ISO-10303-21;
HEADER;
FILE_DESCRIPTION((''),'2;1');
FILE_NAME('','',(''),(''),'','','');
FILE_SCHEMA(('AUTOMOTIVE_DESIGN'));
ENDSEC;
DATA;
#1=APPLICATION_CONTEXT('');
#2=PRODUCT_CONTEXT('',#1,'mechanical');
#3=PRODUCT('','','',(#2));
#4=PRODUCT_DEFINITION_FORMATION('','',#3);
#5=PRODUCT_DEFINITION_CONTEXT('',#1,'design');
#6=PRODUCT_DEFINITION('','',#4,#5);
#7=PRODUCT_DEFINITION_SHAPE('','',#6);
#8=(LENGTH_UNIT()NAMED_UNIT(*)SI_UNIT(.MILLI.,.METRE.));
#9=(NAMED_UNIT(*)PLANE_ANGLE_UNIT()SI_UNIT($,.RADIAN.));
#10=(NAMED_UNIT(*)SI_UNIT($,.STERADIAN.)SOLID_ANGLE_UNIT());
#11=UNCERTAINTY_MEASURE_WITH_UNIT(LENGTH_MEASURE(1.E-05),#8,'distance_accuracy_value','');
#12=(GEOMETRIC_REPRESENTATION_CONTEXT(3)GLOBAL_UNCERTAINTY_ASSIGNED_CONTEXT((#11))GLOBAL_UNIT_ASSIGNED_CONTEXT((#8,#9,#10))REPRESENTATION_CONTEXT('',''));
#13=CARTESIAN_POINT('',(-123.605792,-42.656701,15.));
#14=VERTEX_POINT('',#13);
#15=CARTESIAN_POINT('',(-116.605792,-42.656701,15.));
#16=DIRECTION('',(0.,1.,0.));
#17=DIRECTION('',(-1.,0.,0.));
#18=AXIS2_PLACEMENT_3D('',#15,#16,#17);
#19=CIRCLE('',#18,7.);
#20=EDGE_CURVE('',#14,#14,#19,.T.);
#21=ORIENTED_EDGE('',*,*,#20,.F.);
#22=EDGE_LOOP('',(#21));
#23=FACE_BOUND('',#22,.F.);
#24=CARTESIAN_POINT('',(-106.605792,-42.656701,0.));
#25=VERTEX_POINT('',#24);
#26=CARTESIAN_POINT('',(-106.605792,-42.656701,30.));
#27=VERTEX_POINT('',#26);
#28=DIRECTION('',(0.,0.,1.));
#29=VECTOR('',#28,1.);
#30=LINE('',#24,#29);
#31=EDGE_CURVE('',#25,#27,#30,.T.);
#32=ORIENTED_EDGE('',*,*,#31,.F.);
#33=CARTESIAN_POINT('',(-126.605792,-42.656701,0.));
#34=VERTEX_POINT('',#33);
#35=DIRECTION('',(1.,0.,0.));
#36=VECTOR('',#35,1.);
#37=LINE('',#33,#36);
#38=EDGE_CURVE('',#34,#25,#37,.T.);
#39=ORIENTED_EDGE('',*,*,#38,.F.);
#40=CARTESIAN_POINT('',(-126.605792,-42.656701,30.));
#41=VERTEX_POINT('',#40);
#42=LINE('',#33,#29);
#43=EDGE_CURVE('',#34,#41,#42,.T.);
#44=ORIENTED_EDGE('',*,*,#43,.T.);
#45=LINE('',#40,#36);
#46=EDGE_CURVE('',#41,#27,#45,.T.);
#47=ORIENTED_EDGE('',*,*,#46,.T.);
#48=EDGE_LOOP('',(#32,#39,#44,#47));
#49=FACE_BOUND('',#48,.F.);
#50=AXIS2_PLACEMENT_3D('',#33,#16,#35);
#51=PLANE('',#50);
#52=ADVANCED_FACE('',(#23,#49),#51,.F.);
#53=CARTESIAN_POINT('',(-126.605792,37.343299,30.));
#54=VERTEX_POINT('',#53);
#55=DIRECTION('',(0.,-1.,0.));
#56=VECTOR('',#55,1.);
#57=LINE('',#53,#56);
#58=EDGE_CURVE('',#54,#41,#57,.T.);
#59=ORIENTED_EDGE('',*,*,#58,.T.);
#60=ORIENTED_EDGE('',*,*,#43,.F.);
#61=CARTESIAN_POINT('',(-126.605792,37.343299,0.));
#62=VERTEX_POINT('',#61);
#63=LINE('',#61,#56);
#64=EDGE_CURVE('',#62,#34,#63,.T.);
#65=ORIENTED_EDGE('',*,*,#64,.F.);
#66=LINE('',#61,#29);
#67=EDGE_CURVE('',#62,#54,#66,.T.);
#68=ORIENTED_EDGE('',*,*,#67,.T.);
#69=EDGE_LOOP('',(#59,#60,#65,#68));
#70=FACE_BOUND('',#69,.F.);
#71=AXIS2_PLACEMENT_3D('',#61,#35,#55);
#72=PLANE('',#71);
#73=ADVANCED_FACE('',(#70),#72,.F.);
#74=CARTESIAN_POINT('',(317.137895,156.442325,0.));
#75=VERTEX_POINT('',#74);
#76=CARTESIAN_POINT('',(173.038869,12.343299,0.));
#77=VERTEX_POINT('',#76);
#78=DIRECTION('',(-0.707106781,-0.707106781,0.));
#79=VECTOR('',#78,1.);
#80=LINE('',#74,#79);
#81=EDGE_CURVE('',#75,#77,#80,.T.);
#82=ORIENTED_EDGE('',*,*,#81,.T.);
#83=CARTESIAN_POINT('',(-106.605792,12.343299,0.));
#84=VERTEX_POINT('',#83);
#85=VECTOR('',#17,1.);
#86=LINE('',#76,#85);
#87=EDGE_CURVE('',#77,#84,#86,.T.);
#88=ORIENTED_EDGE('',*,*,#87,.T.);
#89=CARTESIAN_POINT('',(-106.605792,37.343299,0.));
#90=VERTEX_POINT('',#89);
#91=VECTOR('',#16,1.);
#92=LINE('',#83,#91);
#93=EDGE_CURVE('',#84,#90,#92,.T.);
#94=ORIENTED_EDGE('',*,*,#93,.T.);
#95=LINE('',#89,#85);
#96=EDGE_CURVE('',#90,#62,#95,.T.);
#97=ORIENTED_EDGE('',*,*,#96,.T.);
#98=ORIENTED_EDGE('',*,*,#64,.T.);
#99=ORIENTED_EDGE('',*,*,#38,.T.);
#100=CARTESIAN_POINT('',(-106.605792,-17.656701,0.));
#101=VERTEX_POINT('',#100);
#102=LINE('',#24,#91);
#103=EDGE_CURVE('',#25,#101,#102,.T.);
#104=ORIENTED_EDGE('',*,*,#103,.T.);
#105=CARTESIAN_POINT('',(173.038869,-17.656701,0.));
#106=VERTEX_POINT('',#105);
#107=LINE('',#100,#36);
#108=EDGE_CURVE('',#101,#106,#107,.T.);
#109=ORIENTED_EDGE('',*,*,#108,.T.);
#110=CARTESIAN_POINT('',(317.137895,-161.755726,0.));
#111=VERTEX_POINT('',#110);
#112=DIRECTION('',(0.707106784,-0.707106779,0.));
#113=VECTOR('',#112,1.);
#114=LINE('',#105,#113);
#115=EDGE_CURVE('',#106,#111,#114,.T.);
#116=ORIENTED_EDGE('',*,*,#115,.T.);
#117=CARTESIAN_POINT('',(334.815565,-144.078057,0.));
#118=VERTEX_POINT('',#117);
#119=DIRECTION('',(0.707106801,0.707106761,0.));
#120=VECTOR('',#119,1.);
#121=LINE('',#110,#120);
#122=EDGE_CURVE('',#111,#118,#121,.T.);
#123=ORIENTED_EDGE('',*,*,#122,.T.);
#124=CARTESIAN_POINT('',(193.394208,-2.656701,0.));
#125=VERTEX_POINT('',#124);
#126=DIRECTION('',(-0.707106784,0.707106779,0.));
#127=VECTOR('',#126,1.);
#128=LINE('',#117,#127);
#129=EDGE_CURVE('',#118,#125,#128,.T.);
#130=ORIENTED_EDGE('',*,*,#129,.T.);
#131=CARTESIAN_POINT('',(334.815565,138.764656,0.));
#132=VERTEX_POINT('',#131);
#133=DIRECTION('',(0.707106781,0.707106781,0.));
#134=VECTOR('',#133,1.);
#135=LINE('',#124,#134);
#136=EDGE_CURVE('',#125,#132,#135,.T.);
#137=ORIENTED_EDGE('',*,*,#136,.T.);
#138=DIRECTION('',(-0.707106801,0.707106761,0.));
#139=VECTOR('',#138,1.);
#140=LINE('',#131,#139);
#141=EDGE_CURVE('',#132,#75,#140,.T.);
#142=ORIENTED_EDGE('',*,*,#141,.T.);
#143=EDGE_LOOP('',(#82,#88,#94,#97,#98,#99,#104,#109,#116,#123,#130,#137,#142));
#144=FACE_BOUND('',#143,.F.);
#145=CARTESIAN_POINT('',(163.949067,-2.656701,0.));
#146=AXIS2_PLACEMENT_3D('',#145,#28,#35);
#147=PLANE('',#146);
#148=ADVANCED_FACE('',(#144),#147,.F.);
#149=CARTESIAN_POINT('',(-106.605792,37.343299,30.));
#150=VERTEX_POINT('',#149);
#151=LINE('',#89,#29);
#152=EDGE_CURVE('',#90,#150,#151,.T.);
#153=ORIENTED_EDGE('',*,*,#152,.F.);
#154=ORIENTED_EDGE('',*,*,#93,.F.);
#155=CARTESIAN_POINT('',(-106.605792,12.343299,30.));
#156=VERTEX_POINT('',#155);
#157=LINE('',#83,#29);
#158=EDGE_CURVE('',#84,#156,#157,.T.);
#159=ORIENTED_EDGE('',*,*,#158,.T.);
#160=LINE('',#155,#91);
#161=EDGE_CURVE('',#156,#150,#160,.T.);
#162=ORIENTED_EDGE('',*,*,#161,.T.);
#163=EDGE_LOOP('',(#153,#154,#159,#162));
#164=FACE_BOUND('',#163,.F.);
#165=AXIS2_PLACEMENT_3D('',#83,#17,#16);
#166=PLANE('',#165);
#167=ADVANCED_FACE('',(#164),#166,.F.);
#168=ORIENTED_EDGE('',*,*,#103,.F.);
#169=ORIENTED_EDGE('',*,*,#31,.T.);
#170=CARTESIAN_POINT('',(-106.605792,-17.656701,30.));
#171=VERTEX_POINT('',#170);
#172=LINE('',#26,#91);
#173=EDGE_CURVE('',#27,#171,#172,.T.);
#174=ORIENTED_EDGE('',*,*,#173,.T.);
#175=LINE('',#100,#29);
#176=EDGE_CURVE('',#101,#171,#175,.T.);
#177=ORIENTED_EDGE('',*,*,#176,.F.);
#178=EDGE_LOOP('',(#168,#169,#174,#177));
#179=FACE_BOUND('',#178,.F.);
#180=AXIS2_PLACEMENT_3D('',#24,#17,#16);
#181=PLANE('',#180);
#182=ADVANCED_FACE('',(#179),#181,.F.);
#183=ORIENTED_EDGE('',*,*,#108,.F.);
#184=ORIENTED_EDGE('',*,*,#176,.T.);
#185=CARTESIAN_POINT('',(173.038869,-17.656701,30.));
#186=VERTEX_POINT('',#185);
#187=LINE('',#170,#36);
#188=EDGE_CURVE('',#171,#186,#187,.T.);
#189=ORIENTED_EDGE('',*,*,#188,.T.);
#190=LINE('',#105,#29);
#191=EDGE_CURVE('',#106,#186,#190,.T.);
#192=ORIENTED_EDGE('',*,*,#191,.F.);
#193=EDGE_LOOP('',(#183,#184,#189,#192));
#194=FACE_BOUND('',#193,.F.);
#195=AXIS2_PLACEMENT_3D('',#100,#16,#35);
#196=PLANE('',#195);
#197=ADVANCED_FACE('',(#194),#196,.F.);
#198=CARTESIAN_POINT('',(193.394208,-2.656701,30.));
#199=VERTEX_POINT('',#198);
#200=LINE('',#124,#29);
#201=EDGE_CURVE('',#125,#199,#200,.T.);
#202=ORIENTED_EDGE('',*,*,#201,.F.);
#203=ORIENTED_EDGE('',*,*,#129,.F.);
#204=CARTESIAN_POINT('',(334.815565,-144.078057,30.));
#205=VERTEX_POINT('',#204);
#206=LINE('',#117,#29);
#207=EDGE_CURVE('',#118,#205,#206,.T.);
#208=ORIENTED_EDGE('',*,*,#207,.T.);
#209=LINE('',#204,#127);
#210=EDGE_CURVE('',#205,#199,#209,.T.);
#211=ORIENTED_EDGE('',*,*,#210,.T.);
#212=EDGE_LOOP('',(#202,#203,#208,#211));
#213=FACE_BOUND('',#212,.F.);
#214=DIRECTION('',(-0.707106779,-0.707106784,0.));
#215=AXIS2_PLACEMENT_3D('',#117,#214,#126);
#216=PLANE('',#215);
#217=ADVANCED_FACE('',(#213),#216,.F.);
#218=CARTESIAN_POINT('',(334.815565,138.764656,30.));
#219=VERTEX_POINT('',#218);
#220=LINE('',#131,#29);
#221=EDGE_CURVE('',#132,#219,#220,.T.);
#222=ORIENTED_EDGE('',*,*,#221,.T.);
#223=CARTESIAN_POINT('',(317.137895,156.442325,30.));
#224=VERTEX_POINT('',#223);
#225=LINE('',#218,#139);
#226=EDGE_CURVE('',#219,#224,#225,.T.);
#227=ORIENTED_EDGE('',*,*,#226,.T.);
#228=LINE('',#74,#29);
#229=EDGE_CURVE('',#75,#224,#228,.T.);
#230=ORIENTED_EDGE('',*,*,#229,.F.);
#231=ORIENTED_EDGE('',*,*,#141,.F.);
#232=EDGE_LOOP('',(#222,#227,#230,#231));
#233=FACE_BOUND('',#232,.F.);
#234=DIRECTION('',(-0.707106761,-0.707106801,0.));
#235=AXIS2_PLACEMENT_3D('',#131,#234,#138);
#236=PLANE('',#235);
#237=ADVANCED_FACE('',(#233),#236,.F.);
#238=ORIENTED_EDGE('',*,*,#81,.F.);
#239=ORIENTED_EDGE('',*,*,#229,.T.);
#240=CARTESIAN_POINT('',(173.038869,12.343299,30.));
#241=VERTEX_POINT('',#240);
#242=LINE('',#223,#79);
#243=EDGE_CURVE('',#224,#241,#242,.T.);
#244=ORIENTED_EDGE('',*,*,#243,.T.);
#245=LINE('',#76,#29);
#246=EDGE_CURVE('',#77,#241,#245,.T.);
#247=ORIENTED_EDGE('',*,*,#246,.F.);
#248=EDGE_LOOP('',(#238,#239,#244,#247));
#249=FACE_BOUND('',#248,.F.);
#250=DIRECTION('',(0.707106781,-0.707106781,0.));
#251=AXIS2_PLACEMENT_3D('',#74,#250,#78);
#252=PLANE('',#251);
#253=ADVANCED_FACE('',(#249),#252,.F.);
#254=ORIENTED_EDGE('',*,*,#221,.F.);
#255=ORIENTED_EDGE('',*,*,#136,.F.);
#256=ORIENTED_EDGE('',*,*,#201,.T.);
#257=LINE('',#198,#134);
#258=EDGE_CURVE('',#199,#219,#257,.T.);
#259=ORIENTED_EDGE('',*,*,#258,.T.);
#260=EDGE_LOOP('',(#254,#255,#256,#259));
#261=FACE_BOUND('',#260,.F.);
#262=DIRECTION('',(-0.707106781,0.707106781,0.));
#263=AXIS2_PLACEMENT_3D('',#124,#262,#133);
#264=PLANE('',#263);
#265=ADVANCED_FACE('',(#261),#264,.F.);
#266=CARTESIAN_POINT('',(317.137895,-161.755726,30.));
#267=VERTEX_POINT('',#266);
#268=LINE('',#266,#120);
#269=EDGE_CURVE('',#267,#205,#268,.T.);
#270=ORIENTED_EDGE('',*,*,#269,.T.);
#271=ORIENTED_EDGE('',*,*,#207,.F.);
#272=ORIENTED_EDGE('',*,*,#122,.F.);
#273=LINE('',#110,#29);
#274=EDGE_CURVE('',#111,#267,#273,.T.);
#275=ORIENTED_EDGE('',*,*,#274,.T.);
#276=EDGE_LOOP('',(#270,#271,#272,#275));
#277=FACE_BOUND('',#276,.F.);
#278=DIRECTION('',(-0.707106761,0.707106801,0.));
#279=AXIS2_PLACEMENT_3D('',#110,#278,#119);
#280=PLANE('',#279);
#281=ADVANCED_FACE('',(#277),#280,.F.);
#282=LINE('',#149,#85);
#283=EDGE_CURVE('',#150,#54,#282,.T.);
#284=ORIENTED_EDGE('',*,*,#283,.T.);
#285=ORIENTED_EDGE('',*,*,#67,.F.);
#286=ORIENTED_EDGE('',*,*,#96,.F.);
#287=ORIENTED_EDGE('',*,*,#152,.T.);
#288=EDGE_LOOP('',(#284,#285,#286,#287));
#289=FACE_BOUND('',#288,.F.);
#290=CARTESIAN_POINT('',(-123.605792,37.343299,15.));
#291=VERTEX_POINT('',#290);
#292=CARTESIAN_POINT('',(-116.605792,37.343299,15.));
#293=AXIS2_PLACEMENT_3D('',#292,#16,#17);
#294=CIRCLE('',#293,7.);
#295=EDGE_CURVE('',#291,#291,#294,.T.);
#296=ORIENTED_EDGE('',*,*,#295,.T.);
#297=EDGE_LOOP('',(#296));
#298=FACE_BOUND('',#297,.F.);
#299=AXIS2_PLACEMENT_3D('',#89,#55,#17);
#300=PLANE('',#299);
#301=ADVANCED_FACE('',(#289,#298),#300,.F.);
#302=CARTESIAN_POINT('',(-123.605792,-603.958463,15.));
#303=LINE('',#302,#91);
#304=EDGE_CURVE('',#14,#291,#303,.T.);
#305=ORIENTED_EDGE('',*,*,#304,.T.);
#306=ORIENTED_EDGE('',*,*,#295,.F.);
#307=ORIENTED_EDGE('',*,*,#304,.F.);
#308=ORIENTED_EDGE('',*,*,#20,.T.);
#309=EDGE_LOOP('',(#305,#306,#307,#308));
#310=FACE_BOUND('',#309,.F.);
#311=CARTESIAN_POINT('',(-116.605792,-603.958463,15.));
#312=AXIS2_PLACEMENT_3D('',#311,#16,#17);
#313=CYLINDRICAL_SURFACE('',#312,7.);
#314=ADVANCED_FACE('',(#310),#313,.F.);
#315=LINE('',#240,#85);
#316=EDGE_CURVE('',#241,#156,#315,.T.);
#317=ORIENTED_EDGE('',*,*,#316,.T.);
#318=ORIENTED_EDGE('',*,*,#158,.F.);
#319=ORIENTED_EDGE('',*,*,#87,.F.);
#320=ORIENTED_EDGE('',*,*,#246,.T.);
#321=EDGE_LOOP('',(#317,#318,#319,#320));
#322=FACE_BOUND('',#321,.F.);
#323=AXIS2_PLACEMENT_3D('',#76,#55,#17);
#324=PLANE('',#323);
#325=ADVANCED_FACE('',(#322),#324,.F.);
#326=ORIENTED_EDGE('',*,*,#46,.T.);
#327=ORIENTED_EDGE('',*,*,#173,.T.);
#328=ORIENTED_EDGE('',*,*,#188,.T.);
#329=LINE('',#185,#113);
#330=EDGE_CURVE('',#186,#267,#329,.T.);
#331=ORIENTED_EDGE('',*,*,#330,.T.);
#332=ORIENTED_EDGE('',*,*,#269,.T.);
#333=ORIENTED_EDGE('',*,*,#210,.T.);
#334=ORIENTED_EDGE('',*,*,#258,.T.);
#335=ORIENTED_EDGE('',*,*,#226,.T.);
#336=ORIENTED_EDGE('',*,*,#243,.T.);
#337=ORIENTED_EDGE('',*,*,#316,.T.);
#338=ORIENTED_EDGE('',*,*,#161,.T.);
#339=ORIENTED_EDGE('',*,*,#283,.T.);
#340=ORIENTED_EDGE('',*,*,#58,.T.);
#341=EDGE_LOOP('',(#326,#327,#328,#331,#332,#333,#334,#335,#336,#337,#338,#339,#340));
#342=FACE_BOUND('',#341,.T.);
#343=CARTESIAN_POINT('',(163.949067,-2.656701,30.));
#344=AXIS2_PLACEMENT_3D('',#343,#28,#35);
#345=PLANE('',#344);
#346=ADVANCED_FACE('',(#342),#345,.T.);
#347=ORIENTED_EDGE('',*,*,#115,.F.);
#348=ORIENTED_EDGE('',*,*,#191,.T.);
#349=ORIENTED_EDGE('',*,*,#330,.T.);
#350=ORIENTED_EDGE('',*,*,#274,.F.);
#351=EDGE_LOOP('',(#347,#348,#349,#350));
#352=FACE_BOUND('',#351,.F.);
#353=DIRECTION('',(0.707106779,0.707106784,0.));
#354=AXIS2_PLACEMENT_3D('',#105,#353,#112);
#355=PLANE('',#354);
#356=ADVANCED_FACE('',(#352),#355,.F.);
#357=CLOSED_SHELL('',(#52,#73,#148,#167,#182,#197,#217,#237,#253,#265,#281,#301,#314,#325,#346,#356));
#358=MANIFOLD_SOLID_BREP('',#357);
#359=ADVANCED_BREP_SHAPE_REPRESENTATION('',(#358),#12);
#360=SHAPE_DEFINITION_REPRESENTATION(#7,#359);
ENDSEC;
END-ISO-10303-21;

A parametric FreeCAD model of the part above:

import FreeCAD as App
import Part
import Sketcher


def add_polygon(sketch, points):
    """Adds a closed chain of lines whose ends are joined by coincident constraints."""
    first, n = sketch.GeometryCount, len(points)
    for a, b in zip(points, points[1:] + points[:1]):
        sketch.addGeometry(Part.LineSegment(App.Vector(*a, 0), App.Vector(*b, 0)), False)
    for i in range(n):
        sketch.addConstraint(Sketcher.Constraint("Coincident", first + i, 2, first + (i + 1) % n, 1))

doc = App.newDocument("Part")
body = doc.addObject("PartDesign::Body", "Body")

# Sketch on XY plane
sketch1 = body.newObject("Sketcher::SketchObject", "Sketch")
sketch1.AttachmentSupport = (doc.getObject("XY_Plane"), [""])
sketch1.MapMode = "FlatFace"
add_polygon(sketch1, [(173.038869, 12.343299), (-106.605792, 12.343299), (-106.605792, 37.343299), (-126.605792, 37.343299), (-126.605792, -42.656701), (-106.605792, -42.656701), (-106.605792, -17.656701), (173.038869, -17.656701), (317.137895, -161.755726), (334.815565, -144.078057), (193.394208, -2.656701), (334.815565, 138.764656), (317.137895, 156.442325)])  # lines 0-12
sketch1.addConstraint([
    Sketcher.Constraint("Horizontal", 0),
    Sketcher.Constraint("Vertical", 1),
    Sketcher.Constraint("Horizontal", 2),
    Sketcher.Constraint("Vertical", 3),
    Sketcher.Constraint("Horizontal", 4),
    Sketcher.Constraint("Vertical", 5),
    Sketcher.Constraint("Horizontal", 6),
    Sketcher.Constraint("Perpendicular", 7, 8),
    Sketcher.Constraint("Perpendicular", 8, 9),
    Sketcher.Constraint("Perpendicular", 9, 10),
    Sketcher.Constraint("Perpendicular", 10, 11),
    Sketcher.Constraint("Perpendicular", 11, 12),
    Sketcher.Constraint("Vertical", 1, 2, 4, 2),
    Sketcher.Constraint("Vertical", 8, 2, 10, 2),
    Sketcher.Constraint("Vertical", 7, 2, 11, 2),
    Sketcher.Constraint("Vertical", 6, 2, 12, 2),
    Sketcher.Constraint("Equal", 1, 5),
    Sketcher.Constraint("Equal", 9, 10),
    Sketcher.Constraint("DistanceX", 2, 2, 2, 1, 20.0),
    Sketcher.Constraint("DistanceY", 1, 1, 1, 2, 25.0),
    Sketcher.Constraint("DistanceY", 3, 2, 3, 1, 80.0),
    Sketcher.Constraint("Distance", 8, 25.0),
    Sketcher.Constraint("Distance", 9, 200.0),
    Sketcher.Constraint("DistanceX", 0, 2, 9, 2, 300.0),
    Sketcher.Constraint("DistanceY", -1, 1, 0, 2, 12.343299),
    Sketcher.Constraint("DistanceX", 0, 2, -1, 1, 106.605792),
])
pad1 = body.newObject("PartDesign::Pad", "Pad")
pad1.Profile = sketch1
pad1.Length = 30

# Sketch on XZ plane
sketch2 = body.newObject("Sketcher::SketchObject", "Sketch001")
sketch2.AttachmentSupport = (doc.getObject("XZ_Plane"), [""])
sketch2.MapMode = "FlatFace"
sketch2.AttachmentOffset = App.Placement(App.Vector(0, 0, 42.656701), App.Rotation())
sketch2.addGeometry(Part.Circle(App.Vector(-116.605792, 15, 0), App.Vector(0, 0, 1), 7), False)
sketch2.addConstraint([
    Sketcher.Constraint("Diameter", 0, 14.0),
    Sketcher.Constraint("DistanceY", -1, 1, 0, 3, 15.0),
    Sketcher.Constraint("DistanceX", 0, 3, -1, 1, 116.605792),
])
doc.recompute()
hole = body.newObject("PartDesign::Hole", "Hole")
hole.Profile = sketch2
hole.ThreadType = "None"
hole.Diameter = 14
hole.DepthType = "ThroughAll"

doc.recompute()
